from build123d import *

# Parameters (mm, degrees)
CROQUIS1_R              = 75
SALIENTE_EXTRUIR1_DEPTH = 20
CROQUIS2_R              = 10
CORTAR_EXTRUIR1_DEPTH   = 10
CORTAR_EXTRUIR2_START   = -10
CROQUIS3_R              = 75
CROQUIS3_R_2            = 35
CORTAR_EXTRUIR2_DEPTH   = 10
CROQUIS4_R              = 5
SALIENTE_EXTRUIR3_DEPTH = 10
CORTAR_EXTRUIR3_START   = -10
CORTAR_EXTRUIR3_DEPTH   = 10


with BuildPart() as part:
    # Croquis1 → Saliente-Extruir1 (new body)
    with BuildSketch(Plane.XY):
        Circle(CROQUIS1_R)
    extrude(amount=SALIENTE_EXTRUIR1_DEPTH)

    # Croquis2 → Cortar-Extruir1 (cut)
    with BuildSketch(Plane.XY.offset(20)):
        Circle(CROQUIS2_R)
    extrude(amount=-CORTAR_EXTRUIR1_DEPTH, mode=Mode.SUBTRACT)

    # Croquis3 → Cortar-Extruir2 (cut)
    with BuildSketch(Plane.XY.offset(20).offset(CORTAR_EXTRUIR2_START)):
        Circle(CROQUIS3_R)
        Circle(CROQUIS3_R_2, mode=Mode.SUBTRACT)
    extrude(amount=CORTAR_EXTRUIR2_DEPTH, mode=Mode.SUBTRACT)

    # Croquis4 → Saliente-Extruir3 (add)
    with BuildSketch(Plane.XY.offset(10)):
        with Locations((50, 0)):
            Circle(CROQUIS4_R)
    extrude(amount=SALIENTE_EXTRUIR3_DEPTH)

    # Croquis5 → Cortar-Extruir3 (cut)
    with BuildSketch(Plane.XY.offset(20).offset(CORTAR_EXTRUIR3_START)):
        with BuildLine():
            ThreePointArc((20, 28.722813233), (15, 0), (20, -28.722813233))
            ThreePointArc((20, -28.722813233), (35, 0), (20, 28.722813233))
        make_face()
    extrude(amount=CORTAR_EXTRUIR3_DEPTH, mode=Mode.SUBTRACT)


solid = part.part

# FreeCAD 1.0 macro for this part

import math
import FreeCAD as App
import Part
import Sketcher
from FreeCAD import Vector
Q = App.Units.Quantity

doc = App.newDocument("Part")
body = doc.addObject("PartDesign::Body", "Body")

sketch1 = body.newObject("Sketcher::SketchObject", "Sketch")
sketch1.AttachmentSupport = (doc.getObject("XY_Plane"), [""])
sketch1.MapMode = "FlatFace"
sketch1.addGeometry(Part.Circle(Vector(0, 0, 0), Vector(0, 0, 1), 75), False)
sketch1.addConstraint(Sketcher.Constraint("Coincident", 0, 3, -1, 1))
sketch1.addConstraint(Sketcher.Constraint("Diameter", 0, Q("150 mm")))
pad1 = body.newObject("PartDesign::Pad", "Pad")
pad1.Profile = sketch1
pad1.Length = 20

sketch2 = body.newObject("Sketcher::SketchObject", "Sketch001")
sketch2.AttachmentSupport = (doc.getObject("XY_Plane"), [""])
sketch2.MapMode = "FlatFace"
sketch2.AttachmentOffset = App.Placement(Vector(0, 0, 20), App.Rotation())
sketch2.addGeometry(Part.Circle(Vector(0, 0, 0), Vector(0, 0, 1), 10), False)
sketch2.addConstraint(Sketcher.Constraint("Coincident", 0, 3, -1, 1))
sketch2.addConstraint(Sketcher.Constraint("Diameter", 0, Q("20 mm")))
pocket1 = body.newObject("PartDesign::Pocket", "Pocket")
pocket1.Profile = sketch2
pocket1.Length = 10

sketch3 = body.newObject("Sketcher::SketchObject", "Sketch002")
sketch3.AttachmentSupport = (doc.getObject("XY_Plane"), [""])
sketch3.MapMode = "FlatFace"
sketch3.AttachmentOffset = App.Placement(Vector(0, 0, 10), App.Rotation())
sketch3.addGeometry(Part.Circle(Vector(0, 0, 0), Vector(0, 0, 1), 75), False)
sketch3.addGeometry(Part.Circle(Vector(0, 0, 0), Vector(0, 0, 1), 35), False)
sketch3.addConstraint(Sketcher.Constraint("Coincident", 0, 3, -1, 1))
sketch3.addConstraint(Sketcher.Constraint("Coincident", 1, 3, -1, 1))
sketch3.addConstraint(Sketcher.Constraint("Diameter", 0, Q("150 mm")))
sketch3.addConstraint(Sketcher.Constraint("Diameter", 1, Q("70 mm")))
pocket2 = body.newObject("PartDesign::Pocket", "Pocket001")
pocket2.Profile = sketch3
pocket2.Length = 10
pocket2.Reversed = True

sketch4 = body.newObject("Sketcher::SketchObject", "Sketch003")
sketch4.AttachmentSupport = (doc.getObject("XY_Plane"), [""])
sketch4.MapMode = "FlatFace"
sketch4.AttachmentOffset = App.Placement(Vector(0, 0, 10), App.Rotation())
sketch4.addGeometry(Part.Circle(Vector(50, 0, 0), Vector(0, 0, 1), 5), False)
sketch4.addConstraint(Sketcher.Constraint("PointOnObject", 0, 3, -1))
sketch4.addConstraint(Sketcher.Constraint("Diameter", 0, Q("10 mm")))
sketch4.addConstraint(Sketcher.Constraint("DistanceX", -1, 1, 0, 3, Q("50 mm")))
pad2 = body.newObject("PartDesign::Pad", "Pad001")
pad2.Profile = sketch4
pad2.Length = 10

sketch5 = body.newObject("Sketcher::SketchObject", "Sketch004")
sketch5.AttachmentSupport = (doc.getObject("XY_Plane"), [""])
sketch5.MapMode = "FlatFace"
sketch5.AttachmentOffset = App.Placement(Vector(0, 0, 10), App.Rotation())
sketch5.addGeometry(Part.ArcOfCircle(Part.Circle(Vector(100, 0, 0), Vector(0, 0, 1), 85), math.radians(160), math.radians(200)), False)
sketch5.addGeometry(Part.ArcOfCircle(Part.Circle(Vector(0, 0, 0), Vector(0, 0, 1), 35), math.radians(-55), math.radians(55)), False)
sketch5.addConstraint(Sketcher.Constraint("Coincident", 0, 1, 1, 2))
sketch5.addConstraint(Sketcher.Constraint("Coincident", 1, 1, 0, 2))
sketch5.addConstraint(Sketcher.Constraint("Coincident", 1, 3, -1, 1))
sketch5.addConstraint(Sketcher.Constraint("PointOnObject", 0, 3, -1))
sketch5.addConstraint(Sketcher.Constraint("Radius", 0, Q("85 mm")))
sketch5.addConstraint(Sketcher.Constraint("Radius", 1, Q("35 mm")))
sketch5.addConstraint(Sketcher.Constraint("DistanceX", -1, 1, 0, 3, Q("100 mm")))
pocket3 = body.newObject("PartDesign::Pocket", "Pocket002")
pocket3.Profile = sketch5
pocket3.Length = 10
pocket3.Reversed = True

doc.recompute()
